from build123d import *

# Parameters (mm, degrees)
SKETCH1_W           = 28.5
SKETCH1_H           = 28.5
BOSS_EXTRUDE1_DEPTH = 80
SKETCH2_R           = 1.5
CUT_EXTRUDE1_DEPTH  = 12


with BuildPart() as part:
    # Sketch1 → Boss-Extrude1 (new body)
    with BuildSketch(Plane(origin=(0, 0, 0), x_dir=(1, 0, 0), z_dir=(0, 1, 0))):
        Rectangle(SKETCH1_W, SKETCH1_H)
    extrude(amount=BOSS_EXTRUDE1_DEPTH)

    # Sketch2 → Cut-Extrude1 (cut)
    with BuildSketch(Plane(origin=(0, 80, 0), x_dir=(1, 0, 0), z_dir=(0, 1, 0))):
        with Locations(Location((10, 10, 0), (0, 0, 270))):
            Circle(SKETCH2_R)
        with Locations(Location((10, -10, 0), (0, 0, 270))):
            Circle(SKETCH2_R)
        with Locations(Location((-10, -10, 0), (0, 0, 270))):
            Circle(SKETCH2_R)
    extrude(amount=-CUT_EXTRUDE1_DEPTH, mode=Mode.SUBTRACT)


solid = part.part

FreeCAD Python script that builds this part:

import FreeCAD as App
import Part
import Sketcher
from FreeCAD import Vector


def add_polygon(sketch, points):
    """Adds a closed chain of lines whose ends are joined by coincident constraints."""
    first, n = sketch.GeometryCount, len(points)
    for a, b in zip(points, points[1:] + points[:1]):
        sketch.addGeometry(Part.LineSegment(App.Vector(*a, 0), App.Vector(*b, 0)), False)
    for i in range(n):
        sketch.addConstraint(Sketcher.Constraint("Coincident", first + i, 2, first + (i + 1) % n, 1))

doc = App.newDocument("Part")
body = doc.addObject("PartDesign::Body", "Body")

# Sketch on XZ plane
sketch1 = body.newObject("Sketcher::SketchObject", "Sketch")
sketch1.AttachmentSupport = (doc.getObject("XZ_Plane"), [""])
sketch1.MapMode = "FlatFace"
add_polygon(sketch1, [(-14.25, -14.25), (-14.25, 14.25), (14.25, 14.25), (14.25, -14.25)])  # lines 0-3
sketch1.addConstraint(Sketcher.Constraint("Vertical", 0))
sketch1.addConstraint(Sketcher.Constraint("Horizontal", 1))
sketch1.addConstraint(Sketcher.Constraint("Vertical", 2))
sketch1.addConstraint(Sketcher.Constraint("Horizontal", 3))
sketch1.addConstraint(Sketcher.Constraint("Symmetric", 0, 2, 2, 2, -1, 1))
sketch1.addConstraint(Sketcher.Constraint("Equal", 3, 0))
sketch1.addConstraint(Sketcher.Constraint("DistanceX", 1, 1, 1, 2, 28.5))
pad1 = body.newObject("PartDesign::Pad", "Pad")
pad1.Profile = sketch1
pad1.Length = 80
pad1.Reversed = True

# Sketch on XZ plane
sketch2 = body.newObject("Sketcher::SketchObject", "Sketch001")
sketch2.AttachmentSupport = (doc.getObject("XZ_Plane"), [""])
sketch2.MapMode = "FlatFace"
sketch2.AttachmentOffset = App.Placement(Vector(0, 0, -80), App.Rotation())
sketch2.addGeometry(Part.Circle(Vector(10, -10, 0), Vector(0, 0, 1), 1.5), False)
sketch2.addGeometry(Part.Circle(Vector(10, 10, 0), Vector(0, 0, 1), 1.5), False)
sketch2.addGeometry(Part.Circle(Vector(-10, 10, 0), Vector(0, 0, 1), 1.5), False)
sketch2.addConstraint(Sketcher.Constraint("Equal", 0, 1))
sketch2.addConstraint(Sketcher.Constraint("Equal", 1, 2))
sketch2.addConstraint(Sketcher.Constraint("Symmetric", 0, 3, 2, 3, -1, 1))
sketch2.addConstraint(Sketcher.Constraint("Symmetric", 1, 3, 2, 3, -2))
sketch2.addConstraint(Sketcher.Constraint("Diameter", 0, 3.0))
sketch2.addConstraint(Sketcher.Constraint("DistanceX", -1, 1, 0, 3, 10.0))
sketch2.addConstraint(Sketcher.Constraint("DistanceY", 0, 3, -1, 1, 10.0))
pocket1 = body.newObject("PartDesign::Pocket", "Pocket")
pocket1.Profile = sketch2
pocket1.Length = 12
pocket1.Reversed = True

doc.recompute()
